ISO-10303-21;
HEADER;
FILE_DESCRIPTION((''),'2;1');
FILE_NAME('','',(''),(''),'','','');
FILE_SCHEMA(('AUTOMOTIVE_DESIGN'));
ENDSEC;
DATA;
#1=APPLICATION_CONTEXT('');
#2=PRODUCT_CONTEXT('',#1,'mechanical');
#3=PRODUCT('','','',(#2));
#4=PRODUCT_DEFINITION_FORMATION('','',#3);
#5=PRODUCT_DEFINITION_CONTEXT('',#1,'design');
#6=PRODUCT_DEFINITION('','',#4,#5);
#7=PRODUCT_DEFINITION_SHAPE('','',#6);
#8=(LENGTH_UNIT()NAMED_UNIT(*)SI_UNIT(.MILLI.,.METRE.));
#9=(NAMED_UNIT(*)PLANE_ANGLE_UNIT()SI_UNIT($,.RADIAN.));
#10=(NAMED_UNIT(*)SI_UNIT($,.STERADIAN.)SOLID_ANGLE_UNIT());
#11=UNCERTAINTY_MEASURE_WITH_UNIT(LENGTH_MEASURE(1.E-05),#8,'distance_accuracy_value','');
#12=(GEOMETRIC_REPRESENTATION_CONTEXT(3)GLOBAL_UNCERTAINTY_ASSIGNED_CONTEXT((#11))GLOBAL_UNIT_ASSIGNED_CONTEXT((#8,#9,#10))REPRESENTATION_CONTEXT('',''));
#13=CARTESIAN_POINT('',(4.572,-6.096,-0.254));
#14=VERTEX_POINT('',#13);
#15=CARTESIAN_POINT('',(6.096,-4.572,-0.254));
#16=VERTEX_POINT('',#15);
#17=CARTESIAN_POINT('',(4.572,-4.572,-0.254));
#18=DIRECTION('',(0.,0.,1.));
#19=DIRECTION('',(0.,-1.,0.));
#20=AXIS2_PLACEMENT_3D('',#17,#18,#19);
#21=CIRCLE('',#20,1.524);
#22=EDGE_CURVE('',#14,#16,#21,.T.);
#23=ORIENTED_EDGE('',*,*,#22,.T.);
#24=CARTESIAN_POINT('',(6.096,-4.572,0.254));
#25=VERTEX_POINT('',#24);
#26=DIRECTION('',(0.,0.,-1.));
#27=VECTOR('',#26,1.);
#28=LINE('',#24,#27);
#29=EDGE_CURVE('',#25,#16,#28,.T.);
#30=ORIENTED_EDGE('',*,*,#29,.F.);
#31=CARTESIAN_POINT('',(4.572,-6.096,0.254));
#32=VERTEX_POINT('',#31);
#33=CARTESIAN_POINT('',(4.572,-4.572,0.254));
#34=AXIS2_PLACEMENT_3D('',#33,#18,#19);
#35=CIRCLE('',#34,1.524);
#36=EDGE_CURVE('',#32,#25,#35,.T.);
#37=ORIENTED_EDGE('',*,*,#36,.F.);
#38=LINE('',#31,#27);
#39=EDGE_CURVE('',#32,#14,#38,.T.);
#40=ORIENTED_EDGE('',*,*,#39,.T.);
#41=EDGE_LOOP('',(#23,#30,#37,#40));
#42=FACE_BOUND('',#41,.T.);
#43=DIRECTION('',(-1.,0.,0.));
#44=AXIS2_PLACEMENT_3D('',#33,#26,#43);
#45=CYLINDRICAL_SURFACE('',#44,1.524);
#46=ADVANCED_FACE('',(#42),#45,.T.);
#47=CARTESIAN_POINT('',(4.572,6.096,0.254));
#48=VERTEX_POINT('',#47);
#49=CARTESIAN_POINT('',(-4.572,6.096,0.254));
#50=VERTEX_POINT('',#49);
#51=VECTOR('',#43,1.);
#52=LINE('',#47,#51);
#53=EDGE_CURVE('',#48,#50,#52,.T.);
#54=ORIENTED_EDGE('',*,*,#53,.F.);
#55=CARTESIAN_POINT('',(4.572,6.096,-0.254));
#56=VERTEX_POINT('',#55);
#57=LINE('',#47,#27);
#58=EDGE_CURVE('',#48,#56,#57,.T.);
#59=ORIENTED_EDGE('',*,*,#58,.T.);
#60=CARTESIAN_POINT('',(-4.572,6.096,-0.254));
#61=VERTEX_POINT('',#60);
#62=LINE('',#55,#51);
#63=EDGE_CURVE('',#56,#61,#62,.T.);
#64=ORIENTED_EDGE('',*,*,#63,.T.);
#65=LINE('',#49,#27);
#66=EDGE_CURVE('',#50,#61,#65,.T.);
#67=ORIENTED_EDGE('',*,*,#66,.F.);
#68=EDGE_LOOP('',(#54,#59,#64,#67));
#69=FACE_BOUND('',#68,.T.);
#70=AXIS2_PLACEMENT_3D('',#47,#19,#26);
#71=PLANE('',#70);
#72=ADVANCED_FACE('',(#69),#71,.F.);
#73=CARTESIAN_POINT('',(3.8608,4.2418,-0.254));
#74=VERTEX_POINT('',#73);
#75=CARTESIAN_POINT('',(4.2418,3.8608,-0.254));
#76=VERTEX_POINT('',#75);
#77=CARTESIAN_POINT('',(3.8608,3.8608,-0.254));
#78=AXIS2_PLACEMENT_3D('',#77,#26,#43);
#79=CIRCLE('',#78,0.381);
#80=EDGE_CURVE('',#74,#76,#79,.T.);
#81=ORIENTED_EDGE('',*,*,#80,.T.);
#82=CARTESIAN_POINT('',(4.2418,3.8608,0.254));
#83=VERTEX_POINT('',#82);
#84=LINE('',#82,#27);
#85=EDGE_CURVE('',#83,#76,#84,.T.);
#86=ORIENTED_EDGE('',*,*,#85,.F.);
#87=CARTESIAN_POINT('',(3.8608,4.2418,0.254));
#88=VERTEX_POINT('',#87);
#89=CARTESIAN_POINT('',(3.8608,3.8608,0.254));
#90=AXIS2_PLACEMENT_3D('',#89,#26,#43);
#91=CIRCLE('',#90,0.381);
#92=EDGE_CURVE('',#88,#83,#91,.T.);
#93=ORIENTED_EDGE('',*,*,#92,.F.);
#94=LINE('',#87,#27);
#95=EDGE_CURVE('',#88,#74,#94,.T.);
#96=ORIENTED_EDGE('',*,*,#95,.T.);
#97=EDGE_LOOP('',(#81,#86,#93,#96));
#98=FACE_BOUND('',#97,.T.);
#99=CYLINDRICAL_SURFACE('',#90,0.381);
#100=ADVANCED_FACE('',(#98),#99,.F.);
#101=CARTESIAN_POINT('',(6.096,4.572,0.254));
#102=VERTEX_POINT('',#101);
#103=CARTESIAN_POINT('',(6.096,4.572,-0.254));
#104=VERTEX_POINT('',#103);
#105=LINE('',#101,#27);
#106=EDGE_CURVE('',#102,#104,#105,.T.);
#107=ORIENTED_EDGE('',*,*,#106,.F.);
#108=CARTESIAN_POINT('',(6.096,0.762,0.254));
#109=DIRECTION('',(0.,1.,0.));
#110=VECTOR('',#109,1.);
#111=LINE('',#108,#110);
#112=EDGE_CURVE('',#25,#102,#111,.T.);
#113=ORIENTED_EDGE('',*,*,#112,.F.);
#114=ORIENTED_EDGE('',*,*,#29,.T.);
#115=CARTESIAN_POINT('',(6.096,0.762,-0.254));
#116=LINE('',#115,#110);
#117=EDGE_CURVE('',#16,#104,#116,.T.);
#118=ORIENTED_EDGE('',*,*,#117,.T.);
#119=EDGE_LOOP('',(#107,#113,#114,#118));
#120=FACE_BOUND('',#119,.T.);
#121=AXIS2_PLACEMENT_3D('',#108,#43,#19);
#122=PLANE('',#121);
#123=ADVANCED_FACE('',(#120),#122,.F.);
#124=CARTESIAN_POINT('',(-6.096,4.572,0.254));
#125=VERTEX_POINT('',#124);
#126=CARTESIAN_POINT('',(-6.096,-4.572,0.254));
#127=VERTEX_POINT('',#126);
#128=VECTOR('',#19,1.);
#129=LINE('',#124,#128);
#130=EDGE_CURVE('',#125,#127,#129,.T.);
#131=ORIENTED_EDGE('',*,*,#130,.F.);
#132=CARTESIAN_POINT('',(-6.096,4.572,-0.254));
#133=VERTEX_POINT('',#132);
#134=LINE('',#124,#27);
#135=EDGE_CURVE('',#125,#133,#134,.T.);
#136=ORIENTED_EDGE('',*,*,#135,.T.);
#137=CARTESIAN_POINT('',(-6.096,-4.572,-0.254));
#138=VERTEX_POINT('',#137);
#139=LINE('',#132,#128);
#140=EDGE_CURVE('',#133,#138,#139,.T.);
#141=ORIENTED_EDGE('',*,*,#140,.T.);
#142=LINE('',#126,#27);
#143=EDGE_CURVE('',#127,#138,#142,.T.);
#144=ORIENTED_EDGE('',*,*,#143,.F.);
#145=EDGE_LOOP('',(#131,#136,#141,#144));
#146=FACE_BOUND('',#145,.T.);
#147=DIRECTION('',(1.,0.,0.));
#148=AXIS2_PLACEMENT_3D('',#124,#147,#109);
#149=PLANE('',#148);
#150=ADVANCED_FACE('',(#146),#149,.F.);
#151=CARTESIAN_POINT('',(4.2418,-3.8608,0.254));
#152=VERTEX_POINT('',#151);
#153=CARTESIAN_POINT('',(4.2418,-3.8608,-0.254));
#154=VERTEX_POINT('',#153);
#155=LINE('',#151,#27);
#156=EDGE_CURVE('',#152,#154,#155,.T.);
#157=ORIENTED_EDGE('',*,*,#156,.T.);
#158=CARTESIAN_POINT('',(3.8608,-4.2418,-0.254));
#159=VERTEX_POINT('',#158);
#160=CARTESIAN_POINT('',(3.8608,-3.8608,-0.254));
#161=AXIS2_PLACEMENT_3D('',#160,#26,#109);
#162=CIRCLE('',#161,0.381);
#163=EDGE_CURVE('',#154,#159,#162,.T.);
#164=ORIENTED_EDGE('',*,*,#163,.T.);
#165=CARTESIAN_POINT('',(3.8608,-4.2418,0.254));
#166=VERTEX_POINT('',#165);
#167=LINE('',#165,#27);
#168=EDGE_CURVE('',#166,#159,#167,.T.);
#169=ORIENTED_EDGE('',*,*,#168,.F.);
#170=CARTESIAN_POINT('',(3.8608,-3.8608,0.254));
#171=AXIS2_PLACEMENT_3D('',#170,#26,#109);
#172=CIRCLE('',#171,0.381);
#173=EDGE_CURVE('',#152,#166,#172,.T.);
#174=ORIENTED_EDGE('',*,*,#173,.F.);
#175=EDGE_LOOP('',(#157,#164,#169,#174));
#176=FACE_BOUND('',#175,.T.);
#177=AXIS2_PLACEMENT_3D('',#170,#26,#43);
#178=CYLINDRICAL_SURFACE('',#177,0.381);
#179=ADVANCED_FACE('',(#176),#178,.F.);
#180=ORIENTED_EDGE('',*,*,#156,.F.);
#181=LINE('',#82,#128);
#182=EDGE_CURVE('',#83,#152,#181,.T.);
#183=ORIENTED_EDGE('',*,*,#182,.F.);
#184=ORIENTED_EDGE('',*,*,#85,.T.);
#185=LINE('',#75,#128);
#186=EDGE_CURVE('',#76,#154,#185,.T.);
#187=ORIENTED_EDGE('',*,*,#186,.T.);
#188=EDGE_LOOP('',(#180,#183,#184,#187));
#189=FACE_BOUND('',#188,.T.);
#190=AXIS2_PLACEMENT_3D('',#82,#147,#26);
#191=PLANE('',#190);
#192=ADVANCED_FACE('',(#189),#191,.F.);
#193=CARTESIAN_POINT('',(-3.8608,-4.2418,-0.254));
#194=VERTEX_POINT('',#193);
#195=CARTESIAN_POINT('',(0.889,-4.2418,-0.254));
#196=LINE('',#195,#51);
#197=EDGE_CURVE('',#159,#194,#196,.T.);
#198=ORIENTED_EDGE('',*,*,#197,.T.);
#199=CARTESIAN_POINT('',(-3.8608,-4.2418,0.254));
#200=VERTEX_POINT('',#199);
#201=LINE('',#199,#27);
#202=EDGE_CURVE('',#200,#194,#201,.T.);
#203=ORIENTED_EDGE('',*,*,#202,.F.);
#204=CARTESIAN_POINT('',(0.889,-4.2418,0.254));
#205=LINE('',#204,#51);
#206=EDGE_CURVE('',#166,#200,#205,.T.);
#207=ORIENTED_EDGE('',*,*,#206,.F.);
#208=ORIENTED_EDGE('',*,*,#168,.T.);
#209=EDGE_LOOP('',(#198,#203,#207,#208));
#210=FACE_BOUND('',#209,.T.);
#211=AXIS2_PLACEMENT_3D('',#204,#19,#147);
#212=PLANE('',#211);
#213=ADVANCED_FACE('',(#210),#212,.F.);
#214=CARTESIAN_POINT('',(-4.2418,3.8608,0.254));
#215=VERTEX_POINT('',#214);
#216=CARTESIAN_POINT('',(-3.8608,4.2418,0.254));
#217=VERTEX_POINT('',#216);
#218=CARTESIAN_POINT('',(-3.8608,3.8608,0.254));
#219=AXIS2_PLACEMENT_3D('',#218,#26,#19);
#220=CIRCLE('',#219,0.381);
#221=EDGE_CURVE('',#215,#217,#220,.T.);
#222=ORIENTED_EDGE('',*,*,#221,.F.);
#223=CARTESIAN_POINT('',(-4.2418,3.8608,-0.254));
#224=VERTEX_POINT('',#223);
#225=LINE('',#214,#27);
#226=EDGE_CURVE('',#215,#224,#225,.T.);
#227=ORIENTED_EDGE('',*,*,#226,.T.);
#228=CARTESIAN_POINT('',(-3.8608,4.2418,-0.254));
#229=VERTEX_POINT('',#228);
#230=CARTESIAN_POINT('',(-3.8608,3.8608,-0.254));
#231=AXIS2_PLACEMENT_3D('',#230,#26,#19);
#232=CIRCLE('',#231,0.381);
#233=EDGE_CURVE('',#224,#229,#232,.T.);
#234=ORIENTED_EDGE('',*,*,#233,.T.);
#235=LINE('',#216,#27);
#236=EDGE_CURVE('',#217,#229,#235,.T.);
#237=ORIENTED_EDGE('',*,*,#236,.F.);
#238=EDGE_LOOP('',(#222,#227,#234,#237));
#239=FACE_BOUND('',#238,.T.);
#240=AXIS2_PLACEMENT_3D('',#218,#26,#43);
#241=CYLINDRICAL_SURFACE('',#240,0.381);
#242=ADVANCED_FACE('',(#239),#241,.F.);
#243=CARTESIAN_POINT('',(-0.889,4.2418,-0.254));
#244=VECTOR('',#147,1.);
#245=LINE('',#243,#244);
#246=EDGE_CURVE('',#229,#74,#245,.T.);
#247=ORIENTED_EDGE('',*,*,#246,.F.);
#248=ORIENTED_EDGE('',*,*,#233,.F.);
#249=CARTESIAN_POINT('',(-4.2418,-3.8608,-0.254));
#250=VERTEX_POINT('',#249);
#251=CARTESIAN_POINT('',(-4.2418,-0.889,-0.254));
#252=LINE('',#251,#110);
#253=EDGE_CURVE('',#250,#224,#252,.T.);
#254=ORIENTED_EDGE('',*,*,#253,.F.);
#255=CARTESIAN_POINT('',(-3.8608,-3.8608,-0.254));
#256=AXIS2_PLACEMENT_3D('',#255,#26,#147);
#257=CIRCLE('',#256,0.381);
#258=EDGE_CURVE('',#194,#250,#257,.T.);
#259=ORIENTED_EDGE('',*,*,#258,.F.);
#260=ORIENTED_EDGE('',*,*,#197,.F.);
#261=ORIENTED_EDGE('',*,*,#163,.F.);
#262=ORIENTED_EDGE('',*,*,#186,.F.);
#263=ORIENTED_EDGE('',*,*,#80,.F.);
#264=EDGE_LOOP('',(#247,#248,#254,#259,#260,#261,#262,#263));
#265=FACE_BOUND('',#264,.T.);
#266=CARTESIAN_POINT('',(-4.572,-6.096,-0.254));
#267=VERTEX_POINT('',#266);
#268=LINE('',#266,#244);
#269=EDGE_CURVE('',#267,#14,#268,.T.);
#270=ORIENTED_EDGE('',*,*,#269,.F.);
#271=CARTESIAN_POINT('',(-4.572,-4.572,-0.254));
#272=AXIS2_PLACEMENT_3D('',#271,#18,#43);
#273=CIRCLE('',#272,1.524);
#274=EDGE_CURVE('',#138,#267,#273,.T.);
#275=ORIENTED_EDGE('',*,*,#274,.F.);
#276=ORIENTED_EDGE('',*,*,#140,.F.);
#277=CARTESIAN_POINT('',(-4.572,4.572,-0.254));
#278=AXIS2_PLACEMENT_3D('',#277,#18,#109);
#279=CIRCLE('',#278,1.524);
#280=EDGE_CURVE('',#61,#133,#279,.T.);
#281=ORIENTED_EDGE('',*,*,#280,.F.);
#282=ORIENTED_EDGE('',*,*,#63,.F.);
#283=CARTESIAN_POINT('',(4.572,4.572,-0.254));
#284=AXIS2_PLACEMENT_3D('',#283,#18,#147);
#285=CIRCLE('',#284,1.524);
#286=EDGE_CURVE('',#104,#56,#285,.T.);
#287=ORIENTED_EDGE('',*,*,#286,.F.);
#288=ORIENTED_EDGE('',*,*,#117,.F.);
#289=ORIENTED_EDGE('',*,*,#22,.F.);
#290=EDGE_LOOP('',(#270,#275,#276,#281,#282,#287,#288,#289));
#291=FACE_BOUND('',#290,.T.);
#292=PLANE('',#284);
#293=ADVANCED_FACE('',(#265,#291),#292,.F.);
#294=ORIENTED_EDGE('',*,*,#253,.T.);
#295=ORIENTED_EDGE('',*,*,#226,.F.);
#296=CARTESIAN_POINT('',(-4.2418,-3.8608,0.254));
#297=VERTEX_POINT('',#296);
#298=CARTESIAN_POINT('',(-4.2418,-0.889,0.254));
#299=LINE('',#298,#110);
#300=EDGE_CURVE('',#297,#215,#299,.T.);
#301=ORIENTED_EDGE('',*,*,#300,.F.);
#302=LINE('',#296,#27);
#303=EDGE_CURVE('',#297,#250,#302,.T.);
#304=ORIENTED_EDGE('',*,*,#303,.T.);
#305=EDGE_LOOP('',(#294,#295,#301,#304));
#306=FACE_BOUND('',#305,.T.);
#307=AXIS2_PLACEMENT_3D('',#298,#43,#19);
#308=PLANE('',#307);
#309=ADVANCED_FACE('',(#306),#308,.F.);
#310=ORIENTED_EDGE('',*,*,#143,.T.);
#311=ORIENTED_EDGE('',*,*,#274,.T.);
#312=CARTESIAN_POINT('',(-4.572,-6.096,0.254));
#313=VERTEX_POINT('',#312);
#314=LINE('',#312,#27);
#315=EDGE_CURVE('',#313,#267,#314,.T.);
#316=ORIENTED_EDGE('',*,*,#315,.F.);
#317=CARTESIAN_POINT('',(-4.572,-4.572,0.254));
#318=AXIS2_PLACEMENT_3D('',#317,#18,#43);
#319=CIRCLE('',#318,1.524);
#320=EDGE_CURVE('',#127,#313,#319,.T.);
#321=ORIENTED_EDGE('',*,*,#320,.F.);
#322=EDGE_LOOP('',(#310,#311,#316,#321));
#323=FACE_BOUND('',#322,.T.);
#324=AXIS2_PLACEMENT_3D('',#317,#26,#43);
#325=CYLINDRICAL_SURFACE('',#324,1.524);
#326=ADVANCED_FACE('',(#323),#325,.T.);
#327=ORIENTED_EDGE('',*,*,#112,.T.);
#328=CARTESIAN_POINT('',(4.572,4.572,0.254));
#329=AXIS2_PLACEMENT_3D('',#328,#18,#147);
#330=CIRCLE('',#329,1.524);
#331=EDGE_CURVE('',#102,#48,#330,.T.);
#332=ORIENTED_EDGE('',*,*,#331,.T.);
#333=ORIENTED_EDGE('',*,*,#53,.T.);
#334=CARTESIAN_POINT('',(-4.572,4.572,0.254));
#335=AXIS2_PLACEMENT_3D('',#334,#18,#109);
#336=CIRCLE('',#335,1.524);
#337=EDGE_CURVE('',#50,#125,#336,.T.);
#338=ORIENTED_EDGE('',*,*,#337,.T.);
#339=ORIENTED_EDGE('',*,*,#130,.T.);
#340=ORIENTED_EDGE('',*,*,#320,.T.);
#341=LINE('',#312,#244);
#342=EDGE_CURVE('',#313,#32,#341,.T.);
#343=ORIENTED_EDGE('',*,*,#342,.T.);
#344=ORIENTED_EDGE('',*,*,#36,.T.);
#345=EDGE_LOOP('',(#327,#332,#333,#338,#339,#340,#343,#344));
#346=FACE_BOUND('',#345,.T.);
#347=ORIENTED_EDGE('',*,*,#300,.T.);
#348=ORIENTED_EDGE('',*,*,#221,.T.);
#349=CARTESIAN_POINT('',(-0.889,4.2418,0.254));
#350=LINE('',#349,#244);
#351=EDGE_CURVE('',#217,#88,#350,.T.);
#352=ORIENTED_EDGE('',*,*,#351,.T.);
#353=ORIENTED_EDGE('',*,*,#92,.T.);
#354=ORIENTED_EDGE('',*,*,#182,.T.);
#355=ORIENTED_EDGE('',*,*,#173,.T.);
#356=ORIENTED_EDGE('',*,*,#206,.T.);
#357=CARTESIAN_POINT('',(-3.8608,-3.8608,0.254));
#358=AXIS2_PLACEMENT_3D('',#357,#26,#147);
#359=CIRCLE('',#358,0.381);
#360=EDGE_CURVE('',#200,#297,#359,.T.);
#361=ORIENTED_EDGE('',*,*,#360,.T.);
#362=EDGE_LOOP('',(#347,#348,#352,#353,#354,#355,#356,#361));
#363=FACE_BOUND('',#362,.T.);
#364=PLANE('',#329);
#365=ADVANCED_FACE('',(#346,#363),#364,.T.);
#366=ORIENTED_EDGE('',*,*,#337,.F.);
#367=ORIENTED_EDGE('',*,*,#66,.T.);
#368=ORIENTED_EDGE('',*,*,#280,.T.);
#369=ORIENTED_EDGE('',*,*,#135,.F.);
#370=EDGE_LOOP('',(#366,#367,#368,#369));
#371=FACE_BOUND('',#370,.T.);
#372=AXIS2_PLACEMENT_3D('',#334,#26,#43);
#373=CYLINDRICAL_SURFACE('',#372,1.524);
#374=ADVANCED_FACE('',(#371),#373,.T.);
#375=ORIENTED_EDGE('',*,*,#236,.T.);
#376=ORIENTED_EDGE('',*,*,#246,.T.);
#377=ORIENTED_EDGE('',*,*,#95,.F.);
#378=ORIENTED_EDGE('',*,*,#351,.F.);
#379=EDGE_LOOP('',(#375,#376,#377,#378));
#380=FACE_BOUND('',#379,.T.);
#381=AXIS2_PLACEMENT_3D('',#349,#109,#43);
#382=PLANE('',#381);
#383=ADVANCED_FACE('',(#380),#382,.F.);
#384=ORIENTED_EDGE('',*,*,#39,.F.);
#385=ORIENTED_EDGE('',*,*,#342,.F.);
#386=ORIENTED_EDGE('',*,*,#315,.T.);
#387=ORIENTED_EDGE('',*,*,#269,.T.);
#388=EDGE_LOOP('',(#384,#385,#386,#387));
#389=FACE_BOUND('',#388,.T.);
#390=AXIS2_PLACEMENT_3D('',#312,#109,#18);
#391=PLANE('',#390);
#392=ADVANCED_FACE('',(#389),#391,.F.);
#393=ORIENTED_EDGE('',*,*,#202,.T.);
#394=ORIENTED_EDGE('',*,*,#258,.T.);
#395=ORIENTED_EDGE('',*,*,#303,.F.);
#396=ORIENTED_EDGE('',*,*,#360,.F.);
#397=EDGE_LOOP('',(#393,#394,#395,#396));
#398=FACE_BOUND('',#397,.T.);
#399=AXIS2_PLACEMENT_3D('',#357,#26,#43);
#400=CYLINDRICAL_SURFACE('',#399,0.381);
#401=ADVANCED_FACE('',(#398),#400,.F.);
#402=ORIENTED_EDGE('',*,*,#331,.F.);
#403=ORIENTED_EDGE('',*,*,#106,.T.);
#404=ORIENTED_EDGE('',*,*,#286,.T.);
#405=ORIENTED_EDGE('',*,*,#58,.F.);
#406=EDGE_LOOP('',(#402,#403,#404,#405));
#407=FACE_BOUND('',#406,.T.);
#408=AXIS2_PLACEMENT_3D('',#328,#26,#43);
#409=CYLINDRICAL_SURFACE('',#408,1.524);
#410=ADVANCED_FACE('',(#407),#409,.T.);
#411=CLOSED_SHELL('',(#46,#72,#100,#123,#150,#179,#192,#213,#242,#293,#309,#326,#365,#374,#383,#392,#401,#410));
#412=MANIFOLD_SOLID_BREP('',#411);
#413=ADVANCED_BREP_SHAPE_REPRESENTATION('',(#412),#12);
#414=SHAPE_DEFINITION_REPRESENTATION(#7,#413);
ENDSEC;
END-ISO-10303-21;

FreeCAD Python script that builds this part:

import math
import FreeCAD as App
import Part
import Sketcher

V = App.Vector
Q = App.Units.Quantity

doc = App.newDocument("Part")
body = doc.addObject("PartDesign::Body", "Body")

# Sketch on XY plane
sketch1 = body.newObject("Sketcher::SketchObject", "Sketch")
sketch1.AttachmentSupport = (doc.getObject("XY_Plane"), [""])
sketch1.MapMode = "FlatFace"
sketch1.addGeometry(Part.LineSegment(V(4.2418, 0.762, 0), V(6.096, 0.762, 0)), False)
sketch1.addGeometry(Part.LineSegment(V(6.096, 0.762, 0), V(6.096, 4.572, 0)), False)
sketch1.addGeometry(Part.ArcOfCircle(Part.Circle(V(4.572, 4.572, 0), V(0, 0, 1), 1.524), math.radians(0), math.radians(90)), False)
sketch1.addGeometry(Part.LineSegment(V(4.572, 6.096, 0), V(-0.889, 6.096, 0)), False)
sketch1.addGeometry(Part.LineSegment(V(-0.889, 6.096, 0), V(-0.889, 4.2418, 0)), False)
sketch1.addGeometry(Part.LineSegment(V(-0.889, 4.2418, 0), V(3.8608, 4.2418, 0)), False)
sketch1.addGeometry(Part.ArcOfCircle(Part.Circle(V(3.8608, 3.8608, 0), V(0, 0, 1), 0.381), math.radians(0), math.radians(90)), False)
sketch1.addGeometry(Part.LineSegment(V(4.2418, 3.8608, 0), V(4.2418, 0.762, 0)), False)
sketch1.addConstraint(Sketcher.Constraint("Coincident", 0, 2, 1, 1))
sketch1.addConstraint(Sketcher.Constraint("Tangent", 1, 2, 2, 1))
sketch1.addConstraint(Sketcher.Constraint("Tangent", 2, 2, 3, 1))
sketch1.addConstraint(Sketcher.Constraint("Coincident", 3, 2, 4, 1))
sketch1.addConstraint(Sketcher.Constraint("Coincident", 4, 2, 5, 1))
sketch1.addConstraint(Sketcher.Constraint("Tangent", 5, 2, 6, 2))
sketch1.addConstraint(Sketcher.Constraint("Tangent", 6, 1, 7, 1))
sketch1.addConstraint(Sketcher.Constraint("Coincident", 7, 2, 0, 1))
sketch1.addConstraint(Sketcher.Constraint("Horizontal", 0))
sketch1.addConstraint(Sketcher.Constraint("Vertical", 1))
sketch1.addConstraint(Sketcher.Constraint("Horizontal", 3))
sketch1.addConstraint(Sketcher.Constraint("Vertical", 4))
sketch1.addConstraint(Sketcher.Constraint("Horizontal", 5))
sketch1.addConstraint(Sketcher.Constraint("Vertical", 7))
sketch1.addConstraint(Sketcher.Constraint("Equal", 0, 4))
sketch1.addConstraint(Sketcher.Constraint("Radius", 2, Q("0.06 in")))
sketch1.addConstraint(Sketcher.Constraint("Radius", 6, Q("0.015 in")))
sketch1.addConstraint(Sketcher.Constraint("DistanceY", 1, 1, 1, 2, Q("0.15 in")))
sketch1.addConstraint(Sketcher.Constraint("DistanceX", 0, 1, 0, 2, Q("0.073 in")))
sketch1.addConstraint(Sketcher.Constraint("DistanceX", 3, 2, 3, 1, Q("0.215 in")))
sketch1.addConstraint(Sketcher.Constraint("DistanceX", -1, 1, 2, 3, Q("0.18 in")))
sketch1.addConstraint(Sketcher.Constraint("DistanceY", -1, 1, 2, 3, Q("0.18 in")))
pad1 = body.newObject("PartDesign::Pad", "Pad")
pad1.Profile = sketch1
pad1.Length = Q("0.02 in")
pad1.Midplane = True
doc.recompute()

polarpattern = body.newObject("PartDesign::PolarPattern", "PolarPattern")
polarpattern.Originals = [pad1]
polarpattern.Axis = (doc.getObject("Z_Axis"), [""])
polarpattern.Angle = 360
polarpattern.Occurrences = 4
body.Tip = polarpattern

doc.recompute()
